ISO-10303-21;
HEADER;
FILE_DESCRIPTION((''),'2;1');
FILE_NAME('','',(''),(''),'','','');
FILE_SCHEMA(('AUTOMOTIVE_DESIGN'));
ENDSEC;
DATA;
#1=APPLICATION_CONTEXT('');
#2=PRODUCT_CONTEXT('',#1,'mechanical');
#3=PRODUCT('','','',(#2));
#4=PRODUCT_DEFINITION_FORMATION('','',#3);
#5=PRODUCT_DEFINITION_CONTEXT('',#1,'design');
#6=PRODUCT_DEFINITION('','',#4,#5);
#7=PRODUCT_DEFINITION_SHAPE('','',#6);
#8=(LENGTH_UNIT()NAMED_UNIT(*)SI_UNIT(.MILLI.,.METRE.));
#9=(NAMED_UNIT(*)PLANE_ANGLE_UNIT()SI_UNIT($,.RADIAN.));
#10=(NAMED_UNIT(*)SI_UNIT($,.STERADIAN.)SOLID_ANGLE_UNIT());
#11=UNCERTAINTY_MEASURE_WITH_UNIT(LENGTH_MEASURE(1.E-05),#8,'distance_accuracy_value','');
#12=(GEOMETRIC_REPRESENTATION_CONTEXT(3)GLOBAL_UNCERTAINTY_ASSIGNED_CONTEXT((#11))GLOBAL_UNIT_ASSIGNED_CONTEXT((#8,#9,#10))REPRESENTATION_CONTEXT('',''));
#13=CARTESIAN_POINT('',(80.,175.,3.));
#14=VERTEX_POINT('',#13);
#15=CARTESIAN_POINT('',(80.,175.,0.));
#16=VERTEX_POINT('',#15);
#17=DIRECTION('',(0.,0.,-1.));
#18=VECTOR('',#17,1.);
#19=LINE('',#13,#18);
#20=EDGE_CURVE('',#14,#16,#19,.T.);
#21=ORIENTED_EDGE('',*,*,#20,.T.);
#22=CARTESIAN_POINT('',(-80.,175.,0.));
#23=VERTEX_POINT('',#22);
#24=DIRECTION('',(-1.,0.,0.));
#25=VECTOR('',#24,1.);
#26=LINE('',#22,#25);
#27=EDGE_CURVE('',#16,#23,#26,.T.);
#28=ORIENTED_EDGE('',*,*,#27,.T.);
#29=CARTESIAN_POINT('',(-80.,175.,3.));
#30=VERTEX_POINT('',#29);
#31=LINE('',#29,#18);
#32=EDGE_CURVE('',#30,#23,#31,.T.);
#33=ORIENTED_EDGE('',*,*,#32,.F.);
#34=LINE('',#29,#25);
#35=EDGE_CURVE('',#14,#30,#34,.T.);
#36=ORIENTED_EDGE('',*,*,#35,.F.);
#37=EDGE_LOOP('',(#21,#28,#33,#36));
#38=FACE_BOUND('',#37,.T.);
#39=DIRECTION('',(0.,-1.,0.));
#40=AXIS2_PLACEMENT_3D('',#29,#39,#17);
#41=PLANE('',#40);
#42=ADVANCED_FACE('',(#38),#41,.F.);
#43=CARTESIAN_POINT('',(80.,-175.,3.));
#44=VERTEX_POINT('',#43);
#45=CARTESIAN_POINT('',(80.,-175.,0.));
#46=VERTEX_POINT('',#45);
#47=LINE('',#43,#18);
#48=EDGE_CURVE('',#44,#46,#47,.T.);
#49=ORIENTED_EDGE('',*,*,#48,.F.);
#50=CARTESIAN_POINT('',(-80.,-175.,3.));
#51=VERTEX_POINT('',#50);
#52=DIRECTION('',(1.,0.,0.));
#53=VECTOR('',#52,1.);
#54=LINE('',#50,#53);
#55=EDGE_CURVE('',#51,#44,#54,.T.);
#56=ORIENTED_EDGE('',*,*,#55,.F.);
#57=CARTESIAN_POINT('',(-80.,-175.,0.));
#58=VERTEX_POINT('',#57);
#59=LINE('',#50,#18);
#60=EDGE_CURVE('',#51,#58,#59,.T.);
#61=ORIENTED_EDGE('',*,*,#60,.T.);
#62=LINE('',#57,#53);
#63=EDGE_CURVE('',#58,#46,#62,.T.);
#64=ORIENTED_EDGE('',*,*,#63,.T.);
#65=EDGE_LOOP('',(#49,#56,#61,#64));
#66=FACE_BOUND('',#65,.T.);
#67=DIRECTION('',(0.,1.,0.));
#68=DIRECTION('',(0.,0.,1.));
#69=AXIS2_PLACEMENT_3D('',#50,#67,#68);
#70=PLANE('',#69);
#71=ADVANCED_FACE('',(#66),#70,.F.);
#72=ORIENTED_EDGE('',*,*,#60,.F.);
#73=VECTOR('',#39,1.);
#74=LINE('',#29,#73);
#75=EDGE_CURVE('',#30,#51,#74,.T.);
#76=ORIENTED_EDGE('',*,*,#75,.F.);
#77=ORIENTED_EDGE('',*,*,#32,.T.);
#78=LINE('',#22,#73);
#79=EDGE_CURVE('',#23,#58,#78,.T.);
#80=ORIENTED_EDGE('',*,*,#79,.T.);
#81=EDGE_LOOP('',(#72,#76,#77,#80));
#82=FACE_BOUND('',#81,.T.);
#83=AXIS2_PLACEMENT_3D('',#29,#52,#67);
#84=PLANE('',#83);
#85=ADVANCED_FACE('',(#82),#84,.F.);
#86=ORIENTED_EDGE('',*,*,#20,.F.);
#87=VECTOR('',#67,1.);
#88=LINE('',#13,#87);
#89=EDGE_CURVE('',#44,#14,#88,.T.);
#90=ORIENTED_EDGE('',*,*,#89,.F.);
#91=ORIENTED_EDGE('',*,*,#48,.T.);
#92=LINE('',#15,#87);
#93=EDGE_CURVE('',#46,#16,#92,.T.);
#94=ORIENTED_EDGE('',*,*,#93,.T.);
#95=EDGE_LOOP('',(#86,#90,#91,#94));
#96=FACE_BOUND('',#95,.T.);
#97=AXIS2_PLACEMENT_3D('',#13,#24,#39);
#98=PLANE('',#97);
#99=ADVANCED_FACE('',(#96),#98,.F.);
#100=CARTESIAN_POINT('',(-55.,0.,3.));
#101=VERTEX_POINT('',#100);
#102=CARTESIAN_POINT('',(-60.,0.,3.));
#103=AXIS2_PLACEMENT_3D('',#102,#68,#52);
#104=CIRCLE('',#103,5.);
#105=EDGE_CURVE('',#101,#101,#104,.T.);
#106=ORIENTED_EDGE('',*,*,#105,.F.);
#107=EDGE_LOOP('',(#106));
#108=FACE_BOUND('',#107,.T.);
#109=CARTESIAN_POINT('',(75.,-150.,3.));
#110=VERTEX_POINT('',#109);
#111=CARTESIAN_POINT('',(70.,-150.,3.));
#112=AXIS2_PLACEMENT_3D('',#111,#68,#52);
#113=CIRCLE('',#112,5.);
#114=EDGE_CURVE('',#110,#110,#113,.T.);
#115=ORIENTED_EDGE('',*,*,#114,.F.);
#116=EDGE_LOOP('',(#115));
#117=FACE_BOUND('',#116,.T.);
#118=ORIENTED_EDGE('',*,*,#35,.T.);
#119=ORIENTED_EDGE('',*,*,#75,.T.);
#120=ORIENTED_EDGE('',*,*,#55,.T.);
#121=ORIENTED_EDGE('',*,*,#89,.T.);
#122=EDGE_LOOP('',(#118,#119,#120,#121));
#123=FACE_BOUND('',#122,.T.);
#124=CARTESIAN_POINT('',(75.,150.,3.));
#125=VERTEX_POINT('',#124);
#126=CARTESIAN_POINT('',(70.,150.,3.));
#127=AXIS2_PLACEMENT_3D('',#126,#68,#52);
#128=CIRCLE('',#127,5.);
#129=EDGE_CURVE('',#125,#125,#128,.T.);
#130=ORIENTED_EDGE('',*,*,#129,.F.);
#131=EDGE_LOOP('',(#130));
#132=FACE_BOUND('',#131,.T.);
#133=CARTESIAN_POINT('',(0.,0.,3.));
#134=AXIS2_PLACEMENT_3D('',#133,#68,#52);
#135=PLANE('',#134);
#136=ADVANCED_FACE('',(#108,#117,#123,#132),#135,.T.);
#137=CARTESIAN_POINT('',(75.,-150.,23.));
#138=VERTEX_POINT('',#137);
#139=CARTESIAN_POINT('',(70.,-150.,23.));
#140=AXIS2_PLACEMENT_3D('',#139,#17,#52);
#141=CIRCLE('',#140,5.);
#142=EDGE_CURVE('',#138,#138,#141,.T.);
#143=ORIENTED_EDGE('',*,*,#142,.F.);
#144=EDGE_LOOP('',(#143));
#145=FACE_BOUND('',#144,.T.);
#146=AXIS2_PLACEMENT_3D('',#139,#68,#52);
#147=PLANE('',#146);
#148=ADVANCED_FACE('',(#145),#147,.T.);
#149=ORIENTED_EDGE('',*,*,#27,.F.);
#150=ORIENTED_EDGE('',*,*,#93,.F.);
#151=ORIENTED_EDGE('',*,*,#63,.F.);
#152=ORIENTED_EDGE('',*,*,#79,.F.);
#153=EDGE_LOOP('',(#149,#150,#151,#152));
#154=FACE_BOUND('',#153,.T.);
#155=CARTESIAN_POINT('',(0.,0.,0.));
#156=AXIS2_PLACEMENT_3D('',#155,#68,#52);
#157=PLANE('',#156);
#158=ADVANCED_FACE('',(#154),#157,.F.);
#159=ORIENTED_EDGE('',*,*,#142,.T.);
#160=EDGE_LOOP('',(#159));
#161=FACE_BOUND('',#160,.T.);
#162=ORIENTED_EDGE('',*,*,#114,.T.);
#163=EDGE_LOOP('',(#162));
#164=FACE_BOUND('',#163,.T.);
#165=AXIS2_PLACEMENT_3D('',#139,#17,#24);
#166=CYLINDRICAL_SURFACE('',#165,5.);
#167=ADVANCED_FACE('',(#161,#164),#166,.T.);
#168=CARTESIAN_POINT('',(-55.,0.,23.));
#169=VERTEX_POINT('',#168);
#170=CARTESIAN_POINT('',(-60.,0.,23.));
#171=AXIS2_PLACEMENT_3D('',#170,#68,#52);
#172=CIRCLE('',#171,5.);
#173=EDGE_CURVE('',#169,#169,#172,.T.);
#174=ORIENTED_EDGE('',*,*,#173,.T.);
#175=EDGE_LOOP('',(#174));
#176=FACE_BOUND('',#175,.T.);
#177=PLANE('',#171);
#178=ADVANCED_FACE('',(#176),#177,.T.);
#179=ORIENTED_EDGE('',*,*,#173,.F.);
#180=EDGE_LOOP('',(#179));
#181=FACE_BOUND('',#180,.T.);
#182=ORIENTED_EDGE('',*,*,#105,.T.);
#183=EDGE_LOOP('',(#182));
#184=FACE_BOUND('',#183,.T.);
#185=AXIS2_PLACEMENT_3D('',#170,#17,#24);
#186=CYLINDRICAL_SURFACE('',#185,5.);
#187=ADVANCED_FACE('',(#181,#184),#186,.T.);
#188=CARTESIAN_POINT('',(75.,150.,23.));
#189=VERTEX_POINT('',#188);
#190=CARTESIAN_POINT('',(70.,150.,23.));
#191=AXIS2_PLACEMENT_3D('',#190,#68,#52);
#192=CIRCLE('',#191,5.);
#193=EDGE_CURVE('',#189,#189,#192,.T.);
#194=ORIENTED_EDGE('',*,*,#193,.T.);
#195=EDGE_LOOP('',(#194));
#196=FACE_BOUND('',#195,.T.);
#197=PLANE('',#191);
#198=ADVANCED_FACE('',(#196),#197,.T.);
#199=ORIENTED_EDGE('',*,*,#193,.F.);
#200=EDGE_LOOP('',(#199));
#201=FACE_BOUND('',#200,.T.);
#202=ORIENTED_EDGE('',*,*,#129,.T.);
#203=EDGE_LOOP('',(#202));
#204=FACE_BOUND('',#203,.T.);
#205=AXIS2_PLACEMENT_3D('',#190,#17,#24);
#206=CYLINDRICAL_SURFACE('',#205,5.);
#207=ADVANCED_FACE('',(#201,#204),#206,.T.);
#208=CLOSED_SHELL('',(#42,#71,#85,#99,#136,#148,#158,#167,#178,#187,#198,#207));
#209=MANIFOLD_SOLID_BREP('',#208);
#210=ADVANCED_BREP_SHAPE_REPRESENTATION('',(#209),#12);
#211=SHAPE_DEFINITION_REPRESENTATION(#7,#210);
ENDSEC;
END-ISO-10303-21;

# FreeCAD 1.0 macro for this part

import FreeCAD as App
import Part
import Sketcher

doc = App.newDocument("Part")
body = doc.addObject("PartDesign::Body", "Body")

sketch1 = body.newObject("Sketcher::SketchObject", "Sketch")
sketch1.AttachmentSupport = (doc.getObject("XY_Plane"), [""])
sketch1.MapMode = "FlatFace"
sketch1.addGeometry([
    Part.LineSegment(App.Vector(-80, 175, 0), App.Vector(-80, -175, 0)),
    Part.LineSegment(App.Vector(-80, -175, 0), App.Vector(80, -175, 0)),
    Part.LineSegment(App.Vector(80, -175, 0), App.Vector(80, 175, 0)),
    Part.LineSegment(App.Vector(80, 175, 0), App.Vector(-80, 175, 0)),
], False)
sketch1.addConstraint([
    Sketcher.Constraint("Coincident", 0, 2, 1, 1),
    Sketcher.Constraint("Coincident", 1, 2, 2, 1),
    Sketcher.Constraint("Coincident", 2, 2, 3, 1),
    Sketcher.Constraint("Coincident", 3, 2, 0, 1),
    Sketcher.Constraint("Vertical", 0),
    Sketcher.Constraint("Horizontal", 1),
    Sketcher.Constraint("Vertical", 2),
    Sketcher.Constraint("Horizontal", 3),
    Sketcher.Constraint("Symmetric", 0, 2, 2, 2, -1, 1),
    Sketcher.Constraint("DistanceX", 1, 1, 1, 2, 160.0),
    Sketcher.Constraint("DistanceY", 0, 2, 0, 1, 350.0),
])
pad1 = body.newObject("PartDesign::Pad", "Pad")
pad1.Profile = sketch1
pad1.Length = 3

sketch2 = body.newObject("Sketcher::SketchObject", "Sketch001")
sketch2.AttachmentSupport = (doc.getObject("XY_Plane"), [""])
sketch2.MapMode = "FlatFace"
sketch2.AttachmentOffset = App.Placement(App.Vector(0, 0, 3), App.Rotation())
sketch2.addGeometry(Part.Circle(App.Vector(70, 150, 0), App.Vector(0, 0, 1), 5), False)
sketch2.addConstraint([
    Sketcher.Constraint("Diameter", 0, 10.0),
    Sketcher.Constraint("DistanceX", -1, 1, 0, 3, 70.0),
    Sketcher.Constraint("DistanceY", -1, 1, 0, 3, 150.0),
])
pad2 = body.newObject("PartDesign::Pad", "Pad001")
pad2.Profile = sketch2
pad2.Length = 20
doc.recompute()

mirrored = body.newObject("PartDesign::Mirrored", "Mirrored")
mirrored.Originals = [pad2]
mirrored.MirrorPlane = (doc.getObject("XZ_Plane"), [""])
body.Tip = mirrored

sketch3 = body.newObject("Sketcher::SketchObject", "Sketch002")
sketch3.AttachmentSupport = (doc.getObject("XY_Plane"), [""])
sketch3.MapMode = "FlatFace"
sketch3.AttachmentOffset = App.Placement(App.Vector(0, 0, 3), App.Rotation())
sketch3.addGeometry(Part.Circle(App.Vector(-60, 0, 0), App.Vector(0, 0, 1), 5), False)
sketch3.addConstraint([
    Sketcher.Constraint("PointOnObject", 0, 3, -1),
    Sketcher.Constraint("Diameter", 0, 10.0),
    Sketcher.Constraint("DistanceX", 0, 3, -1, 1, 60.0),
])
pad3 = body.newObject("PartDesign::Pad", "Pad002")
pad3.Profile = sketch3
pad3.Length = 20

doc.recompute()
